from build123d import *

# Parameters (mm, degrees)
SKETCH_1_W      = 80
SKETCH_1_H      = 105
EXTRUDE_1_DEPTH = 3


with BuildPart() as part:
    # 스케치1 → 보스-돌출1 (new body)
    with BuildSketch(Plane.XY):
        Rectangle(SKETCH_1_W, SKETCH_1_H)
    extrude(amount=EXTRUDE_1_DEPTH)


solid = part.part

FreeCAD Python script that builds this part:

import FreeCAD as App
import Part
import Sketcher

V = App.Vector


def add_polygon(sketch, points):
    """Adds a closed chain of lines whose ends are joined by coincident constraints."""
    first, n = sketch.GeometryCount, len(points)
    for a, b in zip(points, points[1:] + points[:1]):
        sketch.addGeometry(Part.LineSegment(App.Vector(*a, 0), App.Vector(*b, 0)), False)
    for i in range(n):
        sketch.addConstraint(Sketcher.Constraint("Coincident", first + i, 2, first + (i + 1) % n, 1))

doc = App.newDocument("Part")
body = doc.addObject("PartDesign::Body", "Body")

sketch1 = body.newObject("Sketcher::SketchObject", "Sketch")
sketch1.AttachmentSupport = (doc.getObject("XY_Plane"), [""])
sketch1.MapMode = "FlatFace"
add_polygon(sketch1, [(-40, 52.5), (-40, -52.5), (40, -52.5), (40, 52.5)])
sketch1.addConstraint([
    Sketcher.Constraint("Vertical", 0),
    Sketcher.Constraint("Horizontal", 1),
    Sketcher.Constraint("Vertical", 2),
    Sketcher.Constraint("Horizontal", 3),
    Sketcher.Constraint("Symmetric", 0, 2, 2, 2, -1, 1),
    Sketcher.Constraint("DistanceX", 1, 1, 1, 2, 80.0),
    Sketcher.Constraint("DistanceY", 0, 2, 0, 1, 105.0),
])
pad1 = body.newObject("PartDesign::Pad", "Pad")
pad1.Profile = sketch1
pad1.Length = 3

doc.recompute()
